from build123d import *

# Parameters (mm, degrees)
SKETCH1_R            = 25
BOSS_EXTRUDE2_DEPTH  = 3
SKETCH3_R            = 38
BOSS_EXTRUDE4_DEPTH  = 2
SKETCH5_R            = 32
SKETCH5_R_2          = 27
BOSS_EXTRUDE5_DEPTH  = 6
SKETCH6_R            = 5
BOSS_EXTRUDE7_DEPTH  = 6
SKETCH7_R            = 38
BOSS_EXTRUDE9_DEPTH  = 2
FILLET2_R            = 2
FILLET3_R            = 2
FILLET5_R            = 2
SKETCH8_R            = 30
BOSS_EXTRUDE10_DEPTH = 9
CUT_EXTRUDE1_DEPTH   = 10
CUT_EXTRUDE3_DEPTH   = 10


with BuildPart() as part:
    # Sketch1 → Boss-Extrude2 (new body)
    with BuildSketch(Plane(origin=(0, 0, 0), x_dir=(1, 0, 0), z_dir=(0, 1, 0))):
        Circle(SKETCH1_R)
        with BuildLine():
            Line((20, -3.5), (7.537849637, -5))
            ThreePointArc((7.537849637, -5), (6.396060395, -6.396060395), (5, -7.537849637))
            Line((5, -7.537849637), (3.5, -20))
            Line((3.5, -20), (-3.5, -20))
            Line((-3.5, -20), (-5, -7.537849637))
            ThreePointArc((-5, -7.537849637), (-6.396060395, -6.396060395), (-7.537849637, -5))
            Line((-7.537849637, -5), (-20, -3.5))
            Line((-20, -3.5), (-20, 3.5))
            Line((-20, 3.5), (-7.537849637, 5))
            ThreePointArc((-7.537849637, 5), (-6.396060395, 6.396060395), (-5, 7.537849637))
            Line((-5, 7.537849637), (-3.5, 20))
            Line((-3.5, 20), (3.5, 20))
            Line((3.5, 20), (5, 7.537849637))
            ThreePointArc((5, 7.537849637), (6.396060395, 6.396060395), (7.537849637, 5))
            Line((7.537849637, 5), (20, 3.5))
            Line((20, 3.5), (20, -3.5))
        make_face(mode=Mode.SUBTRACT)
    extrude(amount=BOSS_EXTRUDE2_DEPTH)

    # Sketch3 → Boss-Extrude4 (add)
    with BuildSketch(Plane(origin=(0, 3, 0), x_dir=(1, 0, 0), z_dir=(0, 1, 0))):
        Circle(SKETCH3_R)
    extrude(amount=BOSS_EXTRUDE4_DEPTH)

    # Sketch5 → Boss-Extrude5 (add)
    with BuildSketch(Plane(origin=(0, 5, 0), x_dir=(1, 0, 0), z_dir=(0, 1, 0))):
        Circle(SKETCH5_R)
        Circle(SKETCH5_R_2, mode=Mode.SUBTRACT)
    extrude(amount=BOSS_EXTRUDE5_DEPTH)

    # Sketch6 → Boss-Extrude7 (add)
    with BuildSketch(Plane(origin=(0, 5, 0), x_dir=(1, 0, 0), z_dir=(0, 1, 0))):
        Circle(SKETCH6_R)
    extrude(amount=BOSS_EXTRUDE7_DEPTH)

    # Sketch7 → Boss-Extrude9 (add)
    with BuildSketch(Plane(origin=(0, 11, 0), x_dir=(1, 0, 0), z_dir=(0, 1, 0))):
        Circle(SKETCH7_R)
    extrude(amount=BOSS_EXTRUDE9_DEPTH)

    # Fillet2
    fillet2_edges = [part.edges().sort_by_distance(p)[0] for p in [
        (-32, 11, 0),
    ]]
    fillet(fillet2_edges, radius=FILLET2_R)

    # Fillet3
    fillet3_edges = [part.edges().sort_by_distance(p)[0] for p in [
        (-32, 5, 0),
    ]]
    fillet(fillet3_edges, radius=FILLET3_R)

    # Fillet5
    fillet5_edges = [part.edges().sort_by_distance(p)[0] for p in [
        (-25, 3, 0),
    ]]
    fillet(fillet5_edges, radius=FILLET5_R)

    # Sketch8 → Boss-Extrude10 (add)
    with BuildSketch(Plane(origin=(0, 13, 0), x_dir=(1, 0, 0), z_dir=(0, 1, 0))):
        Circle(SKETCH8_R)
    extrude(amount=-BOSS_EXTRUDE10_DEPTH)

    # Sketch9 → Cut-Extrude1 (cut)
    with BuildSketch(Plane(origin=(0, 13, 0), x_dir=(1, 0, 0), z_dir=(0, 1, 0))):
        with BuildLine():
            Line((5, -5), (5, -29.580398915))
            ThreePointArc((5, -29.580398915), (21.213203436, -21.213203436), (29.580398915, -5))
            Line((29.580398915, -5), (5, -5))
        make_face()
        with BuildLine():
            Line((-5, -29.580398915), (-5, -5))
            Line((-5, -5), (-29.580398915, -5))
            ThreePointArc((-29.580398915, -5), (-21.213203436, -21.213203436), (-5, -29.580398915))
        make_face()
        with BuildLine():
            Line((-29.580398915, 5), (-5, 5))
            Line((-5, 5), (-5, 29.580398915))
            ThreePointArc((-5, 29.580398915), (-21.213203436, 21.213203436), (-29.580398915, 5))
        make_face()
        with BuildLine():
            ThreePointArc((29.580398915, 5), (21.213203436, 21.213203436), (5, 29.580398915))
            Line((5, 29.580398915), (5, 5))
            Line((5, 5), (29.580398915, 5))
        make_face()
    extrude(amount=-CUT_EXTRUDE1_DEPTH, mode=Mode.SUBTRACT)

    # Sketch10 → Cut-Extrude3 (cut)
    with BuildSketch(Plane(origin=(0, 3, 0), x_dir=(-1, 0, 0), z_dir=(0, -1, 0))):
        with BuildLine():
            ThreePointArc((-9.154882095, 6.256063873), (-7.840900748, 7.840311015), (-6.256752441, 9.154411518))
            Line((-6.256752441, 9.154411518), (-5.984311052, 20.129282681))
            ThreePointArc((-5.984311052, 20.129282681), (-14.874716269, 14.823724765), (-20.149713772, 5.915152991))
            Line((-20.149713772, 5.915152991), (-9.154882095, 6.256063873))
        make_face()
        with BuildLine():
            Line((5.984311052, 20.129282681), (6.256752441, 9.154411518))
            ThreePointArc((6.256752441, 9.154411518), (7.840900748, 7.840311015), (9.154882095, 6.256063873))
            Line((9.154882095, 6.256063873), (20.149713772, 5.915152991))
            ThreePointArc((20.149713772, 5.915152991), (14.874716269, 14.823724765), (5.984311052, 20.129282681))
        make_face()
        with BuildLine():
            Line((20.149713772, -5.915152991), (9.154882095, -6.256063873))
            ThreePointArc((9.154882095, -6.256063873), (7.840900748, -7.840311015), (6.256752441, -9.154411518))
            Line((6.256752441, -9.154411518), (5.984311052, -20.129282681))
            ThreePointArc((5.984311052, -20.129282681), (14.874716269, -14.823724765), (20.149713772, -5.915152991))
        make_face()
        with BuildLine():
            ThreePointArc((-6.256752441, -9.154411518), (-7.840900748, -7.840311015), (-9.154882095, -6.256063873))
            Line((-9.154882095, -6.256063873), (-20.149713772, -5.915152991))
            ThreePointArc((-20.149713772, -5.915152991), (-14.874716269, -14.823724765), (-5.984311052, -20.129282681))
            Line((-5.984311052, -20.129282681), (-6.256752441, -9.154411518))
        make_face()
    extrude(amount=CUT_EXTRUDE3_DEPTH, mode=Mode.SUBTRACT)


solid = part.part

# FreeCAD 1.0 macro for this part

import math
import FreeCAD as App
import Part
import Sketcher

V = App.Vector


def edges_at(feature, points):
    """Names of the edges that pass closest to the given points."""
    edges = feature.Shape.Edges
    near = lambda p: min(range(len(edges)), key=lambda i: edges[i].distToShape(Part.Vertex(*p))[0])
    return sorted({f"Edge{near(p) + 1}" for p in points})

doc = App.newDocument("Part")
params = doc.addObject("Spreadsheet::Sheet", "Params")
for row, (alias, value) in enumerate([
    ("sketch1_diameter", "50 mm"),
    ("sketch1_width", "7 mm"),
    ("pad1_length", "3 mm"),
    ("sketch2_diameter", "76 mm"),
    ("pad2_length", "2 mm"),
    ("sketch3_diameter", "64 mm"),
    ("sketch3_diameter2", "54 mm"),
    ("pad3_length", "6 mm"),
    ("sketch4_diameter", "10 mm"),
    ("pad4_length", "6 mm"),
    ("sketch5_diameter", "76 mm"),
    ("pad5_length", "2 mm"),
    ("fillet_radius", "2 mm"),
    ("fillet2_radius", "2 mm"),
    ("fillet3_radius", "2 mm"),
    ("sketch6_diameter", "60 mm"),
    ("pad6_length", "9 mm"),
    ("sketch7_radius", "30 mm"),
    ("pocket1_length", "10 mm"),
    ("sketch8_radius", "21 mm"),
    ("pocket2_length", "10 mm"),
], start=1):
    params.set(f"A{row}", alias)
    params.set(f"B{row}", "=" + value)
    params.setAlias(f"B{row}", alias)

body = doc.addObject("PartDesign::Body", "Body")

# Sketch on XZ plane
sketch1 = body.newObject("Sketcher::SketchObject", "Sketch")
sketch1.AttachmentSupport = (doc.getObject("XZ_Plane"), [""])
sketch1.MapMode = "FlatFace"
sketch1.addGeometry(Part.Circle(V(0, 0, 0), V(0, 0, 1), 25), False)
sketch1.addGeometry(Part.LineSegment(V(20, -3.5, 0), V(20, 3.5, 0)), False)
sketch1.addGeometry(Part.LineSegment(V(20, 3.5, 0), V(7.53785, 5, 0)), False)
sketch1.addGeometry(Part.ArcOfCircle(Part.Circle(V(0, 0, 0), V(0, 0, 1), 9.045395), math.radians(33.557079), math.radians(56.442921)), False)
sketch1.addGeometry(Part.LineSegment(V(5, 7.53785, 0), V(3.5, 20, 0)), False)
sketch1.addGeometry(Part.LineSegment(V(3.5, 20, 0), V(-3.5, 20, 0)), False)
sketch1.addGeometry(Part.LineSegment(V(-3.5, 20, 0), V(-5, 7.53785, 0)), False)
sketch1.addGeometry(Part.ArcOfCircle(Part.Circle(V(0, 0, 0), V(0, 0, 1), 9.045395), math.radians(123.557079), math.radians(146.442921)), False)
sketch1.addGeometry(Part.LineSegment(V(-7.53785, 5, 0), V(-20, 3.5, 0)), False)
sketch1.addGeometry(Part.LineSegment(V(-20, 3.5, 0), V(-20, -3.5, 0)), False)
sketch1.addGeometry(Part.LineSegment(V(-20, -3.5, 0), V(-7.53785, -5, 0)), False)
sketch1.addGeometry(Part.ArcOfCircle(Part.Circle(V(0, 0, 0), V(0, 0, 1), 9.045395), math.radians(-146.442921), math.radians(-123.557079)), False)
sketch1.addGeometry(Part.LineSegment(V(-5, -7.53785, 0), V(-3.5, -20, 0)), False)
sketch1.addGeometry(Part.LineSegment(V(-3.5, -20, 0), V(3.5, -20, 0)), False)
sketch1.addGeometry(Part.LineSegment(V(3.5, -20, 0), V(5, -7.53785, 0)), False)
sketch1.addGeometry(Part.ArcOfCircle(Part.Circle(V(0, 0, 0), V(0, 0, 1), 9.045395), math.radians(-56.442921), math.radians(-33.557079)), False)
sketch1.addGeometry(Part.LineSegment(V(7.53785, -5, 0), V(20, -3.5, 0)), False)
sketch1.addConstraint(Sketcher.Constraint("Coincident", 1, 2, 2, 1))
sketch1.addConstraint(Sketcher.Constraint("Coincident", 2, 2, 3, 1))
sketch1.addConstraint(Sketcher.Constraint("Coincident", 3, 2, 4, 1))
sketch1.addConstraint(Sketcher.Constraint("Coincident", 4, 2, 5, 1))
sketch1.addConstraint(Sketcher.Constraint("Coincident", 5, 2, 6, 1))
sketch1.addConstraint(Sketcher.Constraint("Coincident", 6, 2, 7, 1))
sketch1.addConstraint(Sketcher.Constraint("Coincident", 7, 2, 8, 1))
sketch1.addConstraint(Sketcher.Constraint("Coincident", 8, 2, 9, 1))
sketch1.addConstraint(Sketcher.Constraint("Coincident", 9, 2, 10, 1))
sketch1.addConstraint(Sketcher.Constraint("Coincident", 10, 2, 11, 1))
sketch1.addConstraint(Sketcher.Constraint("Coincident", 11, 2, 12, 1))
sketch1.addConstraint(Sketcher.Constraint("Coincident", 12, 2, 13, 1))
sketch1.addConstraint(Sketcher.Constraint("Coincident", 13, 2, 14, 1))
sketch1.addConstraint(Sketcher.Constraint("Coincident", 14, 2, 15, 1))
sketch1.addConstraint(Sketcher.Constraint("Coincident", 15, 2, 16, 1))
sketch1.addConstraint(Sketcher.Constraint("Coincident", 16, 2, 1, 1))
sketch1.addConstraint(Sketcher.Constraint("Vertical", 1))
sketch1.addConstraint(Sketcher.Constraint("Horizontal", 5))
sketch1.addConstraint(Sketcher.Constraint("Vertical", 9))
sketch1.addConstraint(Sketcher.Constraint("Horizontal", 13))
sketch1.addConstraint(Sketcher.Constraint("Coincident", 0, 3, -1, 1))
sketch1.addConstraint(Sketcher.Constraint("Coincident", 3, 3, -1, 1))
sketch1.addConstraint(Sketcher.Constraint("Coincident", 7, 3, -1, 1))
sketch1.addConstraint(Sketcher.Constraint("Coincident", 11, 3, -1, 1))
sketch1.addConstraint(Sketcher.Constraint("Coincident", 15, 3, -1, 1))
sketch1.addConstraint(Sketcher.Constraint("Equal", 3, 7))
sketch1.addConstraint(Sketcher.Constraint("Equal", 7, 11))
sketch1.addConstraint(Sketcher.Constraint("Equal", 11, 15))
sketch1.addConstraint(Sketcher.Constraint("Symmetric", 1, 2, 9, 2, -1, 1))
sketch1.addConstraint(Sketcher.Constraint("Symmetric", 4, 2, 12, 2, -1, 1))
sketch1.addConstraint(Sketcher.Constraint("Perpendicular", 2, 6))
sketch1.addConstraint(Sketcher.Constraint("Perpendicular", 4, 8))
sketch1.addConstraint(Sketcher.Constraint("Perpendicular", 6, 10))
sketch1.addConstraint(Sketcher.Constraint("Perpendicular", 8, 12))
sketch1.addConstraint(Sketcher.Constraint("Perpendicular", 10, 14))
sketch1.addConstraint(Sketcher.Constraint("Perpendicular", 12, 16))
sketch1.addConstraint(Sketcher.Constraint("Horizontal", 3, 2, 6, 2))
sketch1.addConstraint(Sketcher.Constraint("Horizontal", 2, 2, 7, 2))
sketch1.addConstraint(Sketcher.Constraint("Horizontal", 1, 2, 8, 2))
sketch1.addConstraint(Sketcher.Constraint("Horizontal", 11, 2, 14, 2))
sketch1.addConstraint(Sketcher.Constraint("Horizontal", 10, 2, 15, 2))
sketch1.addConstraint(Sketcher.Constraint("Equal", 13, 1))
sketch1.addConstraint(Sketcher.Constraint("Equal", 2, 4))
sketch1.addConstraint(Sketcher.Constraint("Diameter", 0, 50.0))
sketch1.addConstraint(Sketcher.Constraint("DistanceX", 5, 2, 5, 1, 7.0))
sketch1.addConstraint(Sketcher.Constraint("DistanceX", -1, 1, 1, 2, 20.0))
sketch1.addConstraint(Sketcher.Constraint("DistanceY", -1, 1, 2, 2, 5.0))
sketch1.addConstraint(Sketcher.Constraint("Radius", 3, 9.045395))
sketch1.setExpression("Constraints[43]", "Params.sketch1_diameter")
sketch1.setExpression("Constraints[44]", "Params.sketch1_width")
pad1 = body.newObject("PartDesign::Pad", "Pad")
pad1.Profile = sketch1
pad1.setExpression("Length", "Params.pad1_length")
pad1.Reversed = True

# Sketch on XZ plane
sketch2 = body.newObject("Sketcher::SketchObject", "Sketch001")
sketch2.AttachmentSupport = (doc.getObject("XZ_Plane"), [""])
sketch2.MapMode = "FlatFace"
sketch2.AttachmentOffset = App.Placement(V(0, 0, -3), App.Rotation())
sketch2.addGeometry(Part.Circle(V(0, 0, 0), V(0, 0, 1), 38), False)
sketch2.addConstraint(Sketcher.Constraint("Coincident", 0, 3, -1, 1))
sketch2.addConstraint(Sketcher.Constraint("Diameter", 0, 76.0))
sketch2.setExpression("Constraints[1]", "Params.sketch2_diameter")
pad2 = body.newObject("PartDesign::Pad", "Pad001")
pad2.Profile = sketch2
pad2.setExpression("Length", "Params.pad2_length")
pad2.Reversed = True

# Sketch on XZ plane
sketch3 = body.newObject("Sketcher::SketchObject", "Sketch002")
sketch3.AttachmentSupport = (doc.getObject("XZ_Plane"), [""])
sketch3.MapMode = "FlatFace"
sketch3.AttachmentOffset = App.Placement(V(0, 0, -5), App.Rotation())
sketch3.addGeometry(Part.Circle(V(0, 0, 0), V(0, 0, 1), 32), False)
sketch3.addGeometry(Part.Circle(V(0, 0, 0), V(0, 0, 1), 27), False)
sketch3.addConstraint(Sketcher.Constraint("Coincident", 0, 3, -1, 1))
sketch3.addConstraint(Sketcher.Constraint("Coincident", 1, 3, -1, 1))
sketch3.addConstraint(Sketcher.Constraint("Diameter", 0, 64.0))
sketch3.addConstraint(Sketcher.Constraint("Diameter", 1, 54.0))
sketch3.setExpression("Constraints[2]", "Params.sketch3_diameter")
sketch3.setExpression("Constraints[3]", "Params.sketch3_diameter2")
pad3 = body.newObject("PartDesign::Pad", "Pad002")
pad3.Profile = sketch3
pad3.setExpression("Length", "Params.pad3_length")
pad3.Reversed = True

# Sketch on XZ plane
sketch4 = body.newObject("Sketcher::SketchObject", "Sketch003")
sketch4.AttachmentSupport = (doc.getObject("XZ_Plane"), [""])
sketch4.MapMode = "FlatFace"
sketch4.AttachmentOffset = App.Placement(V(0, 0, -5), App.Rotation())
sketch4.addGeometry(Part.Circle(V(0, 0, 0), V(0, 0, 1), 5), False)
sketch4.addConstraint(Sketcher.Constraint("Coincident", 0, 3, -1, 1))
sketch4.addConstraint(Sketcher.Constraint("Diameter", 0, 10.0))
sketch4.setExpression("Constraints[1]", "Params.sketch4_diameter")
pad4 = body.newObject("PartDesign::Pad", "Pad003")
pad4.Profile = sketch4
pad4.setExpression("Length", "Params.pad4_length")
pad4.Reversed = True

# Sketch on XZ plane
sketch5 = body.newObject("Sketcher::SketchObject", "Sketch004")
sketch5.AttachmentSupport = (doc.getObject("XZ_Plane"), [""])
sketch5.MapMode = "FlatFace"
sketch5.AttachmentOffset = App.Placement(V(0, 0, -11), App.Rotation())
sketch5.addGeometry(Part.Circle(V(0, 0, 0), V(0, 0, 1), 38), False)
sketch5.addConstraint(Sketcher.Constraint("Coincident", 0, 3, -1, 1))
sketch5.addConstraint(Sketcher.Constraint("Diameter", 0, 76.0))
sketch5.setExpression("Constraints[1]", "Params.sketch5_diameter")
pad5 = body.newObject("PartDesign::Pad", "Pad004")
pad5.Profile = sketch5
pad5.setExpression("Length", "Params.pad5_length")
pad5.Reversed = True
doc.recompute()

fillet = body.newObject("PartDesign::Fillet", "Fillet")
fillet.Base = (pad5, edges_at(pad5, [(-32, 11, 0)]))
fillet.setExpression("Radius", "Params.fillet_radius")
doc.recompute()

fillet2 = body.newObject("PartDesign::Fillet", "Fillet001")
fillet2.Base = (fillet, edges_at(fillet, [(-32, 5, 0)]))
fillet2.setExpression("Radius", "Params.fillet2_radius")
doc.recompute()

fillet3 = body.newObject("PartDesign::Fillet", "Fillet002")
fillet3.Base = (fillet2, edges_at(fillet2, [(-25, 3, 0)]))
fillet3.setExpression("Radius", "Params.fillet3_radius")

# Sketch on XZ plane
sketch6 = body.newObject("Sketcher::SketchObject", "Sketch005")
sketch6.AttachmentSupport = (doc.getObject("XZ_Plane"), [""])
sketch6.MapMode = "FlatFace"
sketch6.AttachmentOffset = App.Placement(V(0, 0, -13), App.Rotation())
sketch6.addGeometry(Part.Circle(V(0, 0, 0), V(0, 0, 1), 30), False)
sketch6.addConstraint(Sketcher.Constraint("Coincident", 0, 3, -1, 1))
sketch6.addConstraint(Sketcher.Constraint("Diameter", 0, 60.0))
sketch6.setExpression("Constraints[1]", "Params.sketch6_diameter")
pad6 = body.newObject("PartDesign::Pad", "Pad005")
pad6.Profile = sketch6
pad6.setExpression("Length", "Params.pad6_length")

# Sketch on XZ plane
sketch7 = body.newObject("Sketcher::SketchObject", "Sketch006")
sketch7.AttachmentSupport = (doc.getObject("XZ_Plane"), [""])
sketch7.MapMode = "FlatFace"
sketch7.AttachmentOffset = App.Placement(V(0, 0, -13), App.Rotation())
sketch7.addGeometry(Part.LineSegment(V(5, 5, 0), V(5, 29.580399, 0)), False)
sketch7.addGeometry(Part.ArcOfCircle(Part.Circle(V(0, 0, 0), V(0, 0, 1), 30), math.radians(9.594068), math.radians(80.405932)), False)
sketch7.addGeometry(Part.LineSegment(V(29.580399, 5, 0), V(5, 5, 0)), False)
sketch7.addGeometry(Part.LineSegment(V(-5, 29.580399, 0), V(-5, 5, 0)), False)
sketch7.addGeometry(Part.LineSegment(V(-5, 5, 0), V(-29.580399, 5, 0)), False)
sketch7.addGeometry(Part.ArcOfCircle(Part.Circle(V(0, 0, 0), V(0, 0, 1), 30), math.radians(99.594068), math.radians(170.405932)), False)
sketch7.addGeometry(Part.LineSegment(V(-29.580399, -5, 0), V(-5, -5, 0)), False)
sketch7.addGeometry(Part.LineSegment(V(-5, -5, 0), V(-5, -29.580399, 0)), False)
sketch7.addGeometry(Part.ArcOfCircle(Part.Circle(V(0, 0, 0), V(0, 0, 1), 30), math.radians(-170.405932), math.radians(-99.594068)), False)
sketch7.addGeometry(Part.ArcOfCircle(Part.Circle(V(0, 0, 0), V(0, 0, 1), 30), math.radians(-80.405932), math.radians(-9.594068)), False)
sketch7.addGeometry(Part.LineSegment(V(5, -29.580399, 0), V(5, -5, 0)), False)
sketch7.addGeometry(Part.LineSegment(V(5, -5, 0), V(29.580399, -5, 0)), False)
sketch7.addConstraint(Sketcher.Constraint("Coincident", 0, 2, 1, 2))
sketch7.addConstraint(Sketcher.Constraint("Coincident", 1, 1, 2, 1))
sketch7.addConstraint(Sketcher.Constraint("Coincident", 2, 2, 0, 1))
sketch7.addConstraint(Sketcher.Constraint("Coincident", 3, 2, 4, 1))
sketch7.addConstraint(Sketcher.Constraint("Coincident", 4, 2, 5, 2))
sketch7.addConstraint(Sketcher.Constraint("Coincident", 5, 1, 3, 1))
sketch7.addConstraint(Sketcher.Constraint("Coincident", 6, 2, 7, 1))
sketch7.addConstraint(Sketcher.Constraint("Coincident", 7, 2, 8, 2))
sketch7.addConstraint(Sketcher.Constraint("Coincident", 8, 1, 6, 1))
sketch7.addConstraint(Sketcher.Constraint("Coincident", 9, 1, 10, 1))
sketch7.addConstraint(Sketcher.Constraint("Coincident", 10, 2, 11, 1))
sketch7.addConstraint(Sketcher.Constraint("Coincident", 11, 2, 9, 2))
sketch7.addConstraint(Sketcher.Constraint("Vertical", 0))
sketch7.addConstraint(Sketcher.Constraint("Horizontal", 2))
sketch7.addConstraint(Sketcher.Constraint("Vertical", 3))
sketch7.addConstraint(Sketcher.Constraint("Horizontal", 4))
sketch7.addConstraint(Sketcher.Constraint("Horizontal", 6))
sketch7.addConstraint(Sketcher.Constraint("Vertical", 7))
sketch7.addConstraint(Sketcher.Constraint("Vertical", 10))
sketch7.addConstraint(Sketcher.Constraint("Horizontal", 11))
sketch7.addConstraint(Sketcher.Constraint("Coincident", 1, 3, -1, 1))
sketch7.addConstraint(Sketcher.Constraint("Coincident", 5, 3, -1, 1))
sketch7.addConstraint(Sketcher.Constraint("Coincident", 8, 3, -1, 1))
sketch7.addConstraint(Sketcher.Constraint("Coincident", 9, 3, -1, 1))
sketch7.addConstraint(Sketcher.Constraint("Equal", 1, 5))
sketch7.addConstraint(Sketcher.Constraint("Equal", 5, 8))
sketch7.addConstraint(Sketcher.Constraint("Equal", 8, 9))
sketch7.addConstraint(Sketcher.Constraint("Symmetric", 2, 2, 6, 2, -1, 1))
sketch7.addConstraint(Sketcher.Constraint("Symmetric", 3, 2, 10, 2, -1, 1))
sketch7.addConstraint(Sketcher.Constraint("Symmetric", 2, 2, 3, 2, -2))
sketch7.addConstraint(Sketcher.Constraint("Equal", 11, 0))
sketch7.addConstraint(Sketcher.Constraint("Radius", 1, 30.0))
sketch7.addConstraint(Sketcher.Constraint("DistanceX", -1, 1, 0, 2, 5.0))
sketch7.setExpression("Constraints[31]", "Params.sketch7_radius")
pocket1 = body.newObject("PartDesign::Pocket", "Pocket")
pocket1.Profile = sketch7
pocket1.setExpression("Length", "Params.pocket1_length")
pocket1.Reversed = True

# Sketch on XZ plane
sketch8 = body.newObject("Sketcher::SketchObject", "Sketch007")
sketch8.AttachmentSupport = (doc.getObject("XZ_Plane"), [""])
sketch8.MapMode = "FlatFace"
sketch8.AttachmentOffset = App.Placement(V(0, 0, -3), App.Rotation())
sketch8.addGeometry(Part.ArcOfCircle(Part.Circle(V(0, 0, 0), V(0, 0, 1), 11.088291), math.radians(-55.648621), math.radians(-34.347069)), False)
sketch8.addGeometry(Part.LineSegment(V(6.256752, -9.154412, 0), V(5.984311, -20.129283, 0)), False)
sketch8.addGeometry(Part.ArcOfCircle(Part.Circle(V(0, 0, 0), V(0, 0, 1), 21), math.radians(-73.443112), math.radians(-16.360137)), False)
sketch8.addGeometry(Part.LineSegment(V(20.149714, -5.915153, 0), V(9.154882, -6.256064, 0)), False)
sketch8.addGeometry(Part.LineSegment(V(-5.984311, -20.129283, 0), V(-6.256752, -9.154412, 0)), False)
sketch8.addGeometry(Part.ArcOfCircle(Part.Circle(V(0, 0, 0), V(0, 0, 1), 11.088291), math.radians(-145.652931), math.radians(-124.351379)), False)
sketch8.addGeometry(Part.LineSegment(V(-9.154882, -6.256064, 0), V(-20.149714, -5.915153, 0)), False)
sketch8.addGeometry(Part.ArcOfCircle(Part.Circle(V(0, 0, 0), V(0, 0, 1), 21), math.radians(-163.639863), math.radians(-106.556888)), False)
sketch8.addGeometry(Part.LineSegment(V(-20.149714, 5.915153, 0), V(-9.154882, 6.256064, 0)), False)
sketch8.addGeometry(Part.ArcOfCircle(Part.Circle(V(0, 0, 0), V(0, 0, 1), 11.088291), math.radians(124.351379), math.radians(145.652931)), False)
sketch8.addGeometry(Part.LineSegment(V(-6.256752, 9.154412, 0), V(-5.984311, 20.129283, 0)), False)
sketch8.addGeometry(Part.ArcOfCircle(Part.Circle(V(0, 0, 0), V(0, 0, 1), 21), math.radians(106.556888), math.radians(163.639863)), False)
sketch8.addGeometry(Part.ArcOfCircle(Part.Circle(V(0, 0, 0), V(0, 0, 1), 11.088291), math.radians(34.347069), math.radians(55.648621)), False)
sketch8.addGeometry(Part.LineSegment(V(9.154882, 6.256064, 0), V(20.149714, 5.915153, 0)), False)
sketch8.addGeometry(Part.ArcOfCircle(Part.Circle(V(0, 0, 0), V(0, 0, 1), 21), math.radians(16.360137), math.radians(73.443112)), False)
sketch8.addGeometry(Part.LineSegment(V(5.984311, 20.129283, 0), V(6.256752, 9.154412, 0)), False)
sketch8.addConstraint(Sketcher.Constraint("Coincident", 0, 1, 1, 1))
sketch8.addConstraint(Sketcher.Constraint("Coincident", 1, 2, 2, 1))
sketch8.addConstraint(Sketcher.Constraint("Coincident", 2, 2, 3, 1))
sketch8.addConstraint(Sketcher.Constraint("Coincident", 3, 2, 0, 2))
sketch8.addConstraint(Sketcher.Constraint("Coincident", 4, 2, 5, 2))
sketch8.addConstraint(Sketcher.Constraint("Coincident", 5, 1, 6, 1))
sketch8.addConstraint(Sketcher.Constraint("Coincident", 6, 2, 7, 1))
sketch8.addConstraint(Sketcher.Constraint("Coincident", 7, 2, 4, 1))
sketch8.addConstraint(Sketcher.Constraint("Coincident", 8, 2, 9, 2))
sketch8.addConstraint(Sketcher.Constraint("Coincident", 9, 1, 10, 1))
sketch8.addConstraint(Sketcher.Constraint("Coincident", 10, 2, 11, 1))
sketch8.addConstraint(Sketcher.Constraint("Coincident", 11, 2, 8, 1))
sketch8.addConstraint(Sketcher.Constraint("Coincident", 12, 1, 13, 1))
sketch8.addConstraint(Sketcher.Constraint("Coincident", 13, 2, 14, 1))
sketch8.addConstraint(Sketcher.Constraint("Coincident", 14, 2, 15, 1))
sketch8.addConstraint(Sketcher.Constraint("Coincident", 15, 2, 12, 2))
sketch8.addConstraint(Sketcher.Constraint("Coincident", 0, 3, -1, 1))
sketch8.addConstraint(Sketcher.Constraint("Coincident", 2, 3, -1, 1))
sketch8.addConstraint(Sketcher.Constraint("Coincident", 5, 3, -1, 1))
sketch8.addConstraint(Sketcher.Constraint("Coincident", 7, 3, -1, 1))
sketch8.addConstraint(Sketcher.Constraint("Coincident", 9, 3, -1, 1))
sketch8.addConstraint(Sketcher.Constraint("Coincident", 11, 3, -1, 1))
sketch8.addConstraint(Sketcher.Constraint("Coincident", 12, 3, -1, 1))
sketch8.addConstraint(Sketcher.Constraint("Coincident", 14, 3, -1, 1))
sketch8.addConstraint(Sketcher.Constraint("Equal", 0, 5))
sketch8.addConstraint(Sketcher.Constraint("Equal", 2, 7))
sketch8.addConstraint(Sketcher.Constraint("Equal", 5, 9))
sketch8.addConstraint(Sketcher.Constraint("Equal", 7, 11))
sketch8.addConstraint(Sketcher.Constraint("Equal", 9, 12))
sketch8.addConstraint(Sketcher.Constraint("Equal", 11, 14))
sketch8.addConstraint(Sketcher.Constraint("Parallel", 3, 8))
sketch8.addConstraint(Sketcher.Constraint("Parallel", 1, 10))
sketch8.addConstraint(Sketcher.Constraint("Parallel", 6, 13))
sketch8.addConstraint(Sketcher.Constraint("Parallel", 4, 15))
sketch8.addConstraint(Sketcher.Constraint("Horizontal", 0, 1, 4, 2))
sketch8.addConstraint(Sketcher.Constraint("Horizontal", 3, 2, 5, 1))
sketch8.addConstraint(Sketcher.Constraint("Horizontal", 2, 2, 6, 2))
sketch8.addConstraint(Sketcher.Constraint("Horizontal", 1, 2, 7, 2))
sketch8.addConstraint(Sketcher.Constraint("Horizontal", 8, 2, 12, 1))
sketch8.addConstraint(Sketcher.Constraint("Horizontal", 10, 2, 14, 2))
sketch8.addConstraint(Sketcher.Constraint("Vertical", 5, 1, 8, 2))
sketch8.addConstraint(Sketcher.Constraint("Vertical", 4, 2, 9, 1))
sketch8.addConstraint(Sketcher.Constraint("Radius", 2, 21.0))
sketch8.addConstraint(Sketcher.Constraint("Radius", 0, 11.088291))
sketch8.addConstraint(Sketcher.Constraint("DistanceY", 0, 1, -1, 1, 9.154412))
sketch8.addConstraint(Sketcher.Constraint("DistanceX", -1, 1, 1, 2, 5.984311))
sketch8.addConstraint(Sketcher.Constraint("DistanceX", 0, 1, 2, 2, 13.892961))
sketch8.addConstraint(Sketcher.Constraint("DistanceX", 0, 1, 3, 2, 2.89813))
sketch8.setExpression("Constraints[42]", "Params.sketch8_radius")
pocket2 = body.newObject("PartDesign::Pocket", "Pocket001")
pocket2.Profile = sketch8
pocket2.setExpression("Length", "Params.pocket2_length")
pocket2.Reversed = True

doc.recompute()
